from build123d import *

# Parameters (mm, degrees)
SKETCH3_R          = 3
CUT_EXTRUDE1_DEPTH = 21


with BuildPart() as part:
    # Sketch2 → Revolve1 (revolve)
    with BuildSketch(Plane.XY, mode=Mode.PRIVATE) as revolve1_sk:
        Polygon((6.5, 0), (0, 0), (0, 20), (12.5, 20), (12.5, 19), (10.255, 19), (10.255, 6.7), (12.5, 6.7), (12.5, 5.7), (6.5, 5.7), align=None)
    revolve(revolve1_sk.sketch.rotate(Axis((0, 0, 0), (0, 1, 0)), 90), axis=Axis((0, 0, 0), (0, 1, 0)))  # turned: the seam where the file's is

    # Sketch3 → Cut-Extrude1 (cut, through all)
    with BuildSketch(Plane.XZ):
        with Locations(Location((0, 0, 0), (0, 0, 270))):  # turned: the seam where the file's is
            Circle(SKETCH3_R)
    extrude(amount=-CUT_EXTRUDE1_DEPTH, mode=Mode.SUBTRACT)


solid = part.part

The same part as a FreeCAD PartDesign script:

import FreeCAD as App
import Part
import Sketcher
from FreeCAD import Vector
Q = App.Units.Quantity

doc = App.newDocument("Part")
body = doc.addObject("PartDesign::Body", "Body")

sketch1 = body.newObject("Sketcher::SketchObject", "Sketch")
sketch1.AttachmentSupport = (doc.getObject("XY_Plane"), [""])
sketch1.MapMode = "FlatFace"
sketch1.addGeometry(Part.LineSegment(Vector(0, 0, 0), Vector(6.5, 0, 0)), False)
sketch1.addGeometry(Part.LineSegment(Vector(6.5, 0, 0), Vector(6.5, 5.7, 0)), False)
sketch1.addGeometry(Part.LineSegment(Vector(6.5, 5.7, 0), Vector(12.5, 5.7, 0)), False)
sketch1.addGeometry(Part.LineSegment(Vector(12.5, 5.7, 0), Vector(12.5, 6.7, 0)), False)
sketch1.addGeometry(Part.LineSegment(Vector(12.5, 6.7, 0), Vector(10.3, 6.7, 0)), False)
sketch1.addGeometry(Part.LineSegment(Vector(10.3, 6.7, 0), Vector(10.3, 19, 0)), False)
sketch1.addGeometry(Part.LineSegment(Vector(10.3, 19, 0), Vector(12.5, 19, 0)), False)
sketch1.addGeometry(Part.LineSegment(Vector(12.5, 19, 0), Vector(12.5, 20, 0)), False)
sketch1.addGeometry(Part.LineSegment(Vector(12.5, 20, 0), Vector(0, 20, 0)), False)
sketch1.addGeometry(Part.LineSegment(Vector(0, 20, 0), Vector(0, 0, 0)), False)
sketch1.addConstraint(Sketcher.Constraint("Coincident", 0, 2, 1, 1))
sketch1.addConstraint(Sketcher.Constraint("Coincident", 1, 2, 2, 1))
sketch1.addConstraint(Sketcher.Constraint("Coincident", 2, 2, 3, 1))
sketch1.addConstraint(Sketcher.Constraint("Coincident", 3, 2, 4, 1))
sketch1.addConstraint(Sketcher.Constraint("Coincident", 4, 2, 5, 1))
sketch1.addConstraint(Sketcher.Constraint("Coincident", 5, 2, 6, 1))
sketch1.addConstraint(Sketcher.Constraint("Coincident", 6, 2, 7, 1))
sketch1.addConstraint(Sketcher.Constraint("Coincident", 7, 2, 8, 1))
sketch1.addConstraint(Sketcher.Constraint("Coincident", 8, 2, 9, 1))
sketch1.addConstraint(Sketcher.Constraint("Coincident", 9, 2, 0, 1))
sketch1.addConstraint(Sketcher.Constraint("Horizontal", 0))
sketch1.addConstraint(Sketcher.Constraint("Vertical", 1))
sketch1.addConstraint(Sketcher.Constraint("Horizontal", 2))
sketch1.addConstraint(Sketcher.Constraint("Vertical", 3))
sketch1.addConstraint(Sketcher.Constraint("Horizontal", 4))
sketch1.addConstraint(Sketcher.Constraint("Vertical", 5))
sketch1.addConstraint(Sketcher.Constraint("Horizontal", 6))
sketch1.addConstraint(Sketcher.Constraint("Vertical", 7))
sketch1.addConstraint(Sketcher.Constraint("Horizontal", 8))
sketch1.addConstraint(Sketcher.Constraint("Vertical", 9))
sketch1.addConstraint(Sketcher.Constraint("Coincident", 9, 2, -1, 1))
sketch1.addConstraint(Sketcher.Constraint("Vertical", 3, 2, 6, 2))
sketch1.addConstraint(Sketcher.Constraint("Equal", 3, 7))
sketch1.addConstraint(Sketcher.Constraint("DistanceX", 2, 1, 2, 2, Q("6 mm")))
sketch1.addConstraint(Sketcher.Constraint("DistanceY", 3, 1, 3, 2, Q("1 mm")))
sketch1.addConstraint(Sketcher.Constraint("DistanceY", 9, 2, 9, 1, Q("20 mm")))
sketch1.addConstraint(Sketcher.Constraint("DistanceX", 0, 1, 0, 2, Q("6.5 mm")))
sketch1.addConstraint(Sketcher.Constraint("DistanceY", 1, 1, 1, 2, Q("5.7 mm")))
sketch1.addConstraint(Sketcher.Constraint("DistanceX", 4, 2, 4, 1, Q("2.245 mm")))
revolution = body.newObject("PartDesign::Revolution", "Revolution")
revolution.Profile = sketch1
revolution.ReferenceAxis = (sketch1, ["V_Axis"])
revolution.Angle = 360

sketch2 = body.newObject("Sketcher::SketchObject", "Sketch001")
sketch2.AttachmentSupport = (doc.getObject("XZ_Plane"), [""])
sketch2.MapMode = "FlatFace"
sketch2.addGeometry(Part.Circle(Vector(0, 0, 0), Vector(0, 0, 1), 3), False)
sketch2.addConstraint(Sketcher.Constraint("Coincident", 0, 3, -1, 1))
sketch2.addConstraint(Sketcher.Constraint("Diameter", 0, Q("6 mm")))
pocket1 = body.newObject("PartDesign::Pocket", "Pocket")
pocket1.Profile = sketch2
pocket1.Type = "ThroughAll"

doc.recompute()
